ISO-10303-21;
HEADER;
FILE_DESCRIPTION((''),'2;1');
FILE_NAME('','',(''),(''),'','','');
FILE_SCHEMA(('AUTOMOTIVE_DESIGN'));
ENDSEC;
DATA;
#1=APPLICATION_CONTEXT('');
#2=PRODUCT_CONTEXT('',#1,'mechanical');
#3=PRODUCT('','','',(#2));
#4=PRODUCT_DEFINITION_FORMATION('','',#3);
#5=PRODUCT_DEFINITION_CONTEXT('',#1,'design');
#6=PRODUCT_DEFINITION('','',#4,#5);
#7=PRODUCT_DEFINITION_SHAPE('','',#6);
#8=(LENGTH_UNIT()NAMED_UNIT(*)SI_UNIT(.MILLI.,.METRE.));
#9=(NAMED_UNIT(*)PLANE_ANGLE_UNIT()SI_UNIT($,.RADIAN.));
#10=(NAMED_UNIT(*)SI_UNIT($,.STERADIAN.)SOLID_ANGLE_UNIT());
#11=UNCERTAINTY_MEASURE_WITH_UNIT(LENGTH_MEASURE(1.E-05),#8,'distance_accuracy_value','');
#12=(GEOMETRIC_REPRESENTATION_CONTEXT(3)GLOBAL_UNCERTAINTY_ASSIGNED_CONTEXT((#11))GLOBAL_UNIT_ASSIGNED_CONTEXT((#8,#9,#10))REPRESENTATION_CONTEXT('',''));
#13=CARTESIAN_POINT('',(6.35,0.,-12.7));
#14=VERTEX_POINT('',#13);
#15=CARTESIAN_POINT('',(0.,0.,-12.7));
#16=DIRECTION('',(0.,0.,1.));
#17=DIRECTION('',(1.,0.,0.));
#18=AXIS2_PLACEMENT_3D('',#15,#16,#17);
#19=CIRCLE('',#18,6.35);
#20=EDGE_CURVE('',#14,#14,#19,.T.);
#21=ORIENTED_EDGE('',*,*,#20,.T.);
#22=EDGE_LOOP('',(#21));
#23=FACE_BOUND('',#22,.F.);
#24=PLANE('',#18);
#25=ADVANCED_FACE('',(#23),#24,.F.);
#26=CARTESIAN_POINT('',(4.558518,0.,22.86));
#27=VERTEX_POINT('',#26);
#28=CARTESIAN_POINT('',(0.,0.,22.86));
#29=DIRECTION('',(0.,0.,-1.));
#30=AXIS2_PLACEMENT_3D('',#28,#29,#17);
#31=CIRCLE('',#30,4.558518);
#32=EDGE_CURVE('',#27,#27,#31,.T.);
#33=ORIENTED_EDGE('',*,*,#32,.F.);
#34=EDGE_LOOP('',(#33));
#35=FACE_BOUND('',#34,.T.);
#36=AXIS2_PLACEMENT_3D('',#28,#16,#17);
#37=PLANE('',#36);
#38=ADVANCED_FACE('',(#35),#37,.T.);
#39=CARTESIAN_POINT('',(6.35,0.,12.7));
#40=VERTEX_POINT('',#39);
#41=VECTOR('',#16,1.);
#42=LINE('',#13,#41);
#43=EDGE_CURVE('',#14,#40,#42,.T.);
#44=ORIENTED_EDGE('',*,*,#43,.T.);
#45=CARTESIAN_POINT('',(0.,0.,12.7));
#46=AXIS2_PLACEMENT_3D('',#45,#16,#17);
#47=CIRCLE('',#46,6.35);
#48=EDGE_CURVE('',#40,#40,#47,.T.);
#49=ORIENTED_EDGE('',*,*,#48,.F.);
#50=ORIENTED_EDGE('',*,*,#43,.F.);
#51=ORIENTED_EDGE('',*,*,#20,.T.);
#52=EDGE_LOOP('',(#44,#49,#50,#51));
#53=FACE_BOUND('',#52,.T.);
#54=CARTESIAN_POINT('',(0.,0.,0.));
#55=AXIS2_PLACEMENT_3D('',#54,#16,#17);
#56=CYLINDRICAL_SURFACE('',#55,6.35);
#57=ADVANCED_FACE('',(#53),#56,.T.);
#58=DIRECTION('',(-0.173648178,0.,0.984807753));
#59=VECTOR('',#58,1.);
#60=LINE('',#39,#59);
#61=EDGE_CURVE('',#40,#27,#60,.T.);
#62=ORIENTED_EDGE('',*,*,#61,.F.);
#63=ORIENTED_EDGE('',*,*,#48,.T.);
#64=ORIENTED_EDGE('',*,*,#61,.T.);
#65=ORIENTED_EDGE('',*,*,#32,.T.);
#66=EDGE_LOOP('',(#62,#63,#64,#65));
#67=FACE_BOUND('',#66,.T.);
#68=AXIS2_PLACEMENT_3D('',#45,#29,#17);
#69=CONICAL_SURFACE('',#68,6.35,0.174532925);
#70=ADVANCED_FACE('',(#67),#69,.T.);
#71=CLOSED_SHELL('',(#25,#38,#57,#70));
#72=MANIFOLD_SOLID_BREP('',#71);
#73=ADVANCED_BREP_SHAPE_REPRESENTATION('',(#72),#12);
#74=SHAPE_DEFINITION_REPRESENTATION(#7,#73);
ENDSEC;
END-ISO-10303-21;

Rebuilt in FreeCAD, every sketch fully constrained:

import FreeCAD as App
import Part
import Sketcher
Q = App.Units.Quantity

doc = App.newDocument("Part")
body = doc.addObject("PartDesign::Body", "Body")

# Sketch on XY plane
sketch1 = body.newObject("Sketcher::SketchObject", "Sketch")
sketch1.AttachmentSupport = (doc.getObject("XY_Plane"), [""])
sketch1.MapMode = "FlatFace"
sketch1.addGeometry(Part.Circle(App.Vector(0, 0, 0), App.Vector(0, 0, 1), 6), False)
sketch1.addConstraint([
    Sketcher.Constraint("Coincident", 0, 3, -1, 1),
    Sketcher.Constraint("Diameter", 0, Q("0.5 in")),
])
pad1 = body.newObject("PartDesign::Pad", "Pad")
pad1.Profile = sketch1
pad1.Length = Q("1 in")
pad1.Midplane = True

# Sketch on XY plane
sketch2 = body.newObject("Sketcher::SketchObject", "Sketch001")
sketch2.AttachmentSupport = (doc.getObject("XY_Plane"), [""])
sketch2.MapMode = "FlatFace"
sketch2.AttachmentOffset = App.Placement(App.Vector(0, 0, 0.5 * 25.4), App.Rotation())
sketch2.addGeometry(Part.Circle(App.Vector(0, 0, 0), App.Vector(0, 0, 1), 6), False)
sketch2.addConstraint([
    Sketcher.Constraint("Coincident", 0, 3, -1, 1),
    Sketcher.Constraint("Diameter", 0, Q("0.5 in")),
])
pad2 = body.newObject("PartDesign::Pad", "Pad001")
pad2.Profile = sketch2
pad2.Length = Q("0.4 in")
pad2.TaperAngle = -10

doc.recompute()
